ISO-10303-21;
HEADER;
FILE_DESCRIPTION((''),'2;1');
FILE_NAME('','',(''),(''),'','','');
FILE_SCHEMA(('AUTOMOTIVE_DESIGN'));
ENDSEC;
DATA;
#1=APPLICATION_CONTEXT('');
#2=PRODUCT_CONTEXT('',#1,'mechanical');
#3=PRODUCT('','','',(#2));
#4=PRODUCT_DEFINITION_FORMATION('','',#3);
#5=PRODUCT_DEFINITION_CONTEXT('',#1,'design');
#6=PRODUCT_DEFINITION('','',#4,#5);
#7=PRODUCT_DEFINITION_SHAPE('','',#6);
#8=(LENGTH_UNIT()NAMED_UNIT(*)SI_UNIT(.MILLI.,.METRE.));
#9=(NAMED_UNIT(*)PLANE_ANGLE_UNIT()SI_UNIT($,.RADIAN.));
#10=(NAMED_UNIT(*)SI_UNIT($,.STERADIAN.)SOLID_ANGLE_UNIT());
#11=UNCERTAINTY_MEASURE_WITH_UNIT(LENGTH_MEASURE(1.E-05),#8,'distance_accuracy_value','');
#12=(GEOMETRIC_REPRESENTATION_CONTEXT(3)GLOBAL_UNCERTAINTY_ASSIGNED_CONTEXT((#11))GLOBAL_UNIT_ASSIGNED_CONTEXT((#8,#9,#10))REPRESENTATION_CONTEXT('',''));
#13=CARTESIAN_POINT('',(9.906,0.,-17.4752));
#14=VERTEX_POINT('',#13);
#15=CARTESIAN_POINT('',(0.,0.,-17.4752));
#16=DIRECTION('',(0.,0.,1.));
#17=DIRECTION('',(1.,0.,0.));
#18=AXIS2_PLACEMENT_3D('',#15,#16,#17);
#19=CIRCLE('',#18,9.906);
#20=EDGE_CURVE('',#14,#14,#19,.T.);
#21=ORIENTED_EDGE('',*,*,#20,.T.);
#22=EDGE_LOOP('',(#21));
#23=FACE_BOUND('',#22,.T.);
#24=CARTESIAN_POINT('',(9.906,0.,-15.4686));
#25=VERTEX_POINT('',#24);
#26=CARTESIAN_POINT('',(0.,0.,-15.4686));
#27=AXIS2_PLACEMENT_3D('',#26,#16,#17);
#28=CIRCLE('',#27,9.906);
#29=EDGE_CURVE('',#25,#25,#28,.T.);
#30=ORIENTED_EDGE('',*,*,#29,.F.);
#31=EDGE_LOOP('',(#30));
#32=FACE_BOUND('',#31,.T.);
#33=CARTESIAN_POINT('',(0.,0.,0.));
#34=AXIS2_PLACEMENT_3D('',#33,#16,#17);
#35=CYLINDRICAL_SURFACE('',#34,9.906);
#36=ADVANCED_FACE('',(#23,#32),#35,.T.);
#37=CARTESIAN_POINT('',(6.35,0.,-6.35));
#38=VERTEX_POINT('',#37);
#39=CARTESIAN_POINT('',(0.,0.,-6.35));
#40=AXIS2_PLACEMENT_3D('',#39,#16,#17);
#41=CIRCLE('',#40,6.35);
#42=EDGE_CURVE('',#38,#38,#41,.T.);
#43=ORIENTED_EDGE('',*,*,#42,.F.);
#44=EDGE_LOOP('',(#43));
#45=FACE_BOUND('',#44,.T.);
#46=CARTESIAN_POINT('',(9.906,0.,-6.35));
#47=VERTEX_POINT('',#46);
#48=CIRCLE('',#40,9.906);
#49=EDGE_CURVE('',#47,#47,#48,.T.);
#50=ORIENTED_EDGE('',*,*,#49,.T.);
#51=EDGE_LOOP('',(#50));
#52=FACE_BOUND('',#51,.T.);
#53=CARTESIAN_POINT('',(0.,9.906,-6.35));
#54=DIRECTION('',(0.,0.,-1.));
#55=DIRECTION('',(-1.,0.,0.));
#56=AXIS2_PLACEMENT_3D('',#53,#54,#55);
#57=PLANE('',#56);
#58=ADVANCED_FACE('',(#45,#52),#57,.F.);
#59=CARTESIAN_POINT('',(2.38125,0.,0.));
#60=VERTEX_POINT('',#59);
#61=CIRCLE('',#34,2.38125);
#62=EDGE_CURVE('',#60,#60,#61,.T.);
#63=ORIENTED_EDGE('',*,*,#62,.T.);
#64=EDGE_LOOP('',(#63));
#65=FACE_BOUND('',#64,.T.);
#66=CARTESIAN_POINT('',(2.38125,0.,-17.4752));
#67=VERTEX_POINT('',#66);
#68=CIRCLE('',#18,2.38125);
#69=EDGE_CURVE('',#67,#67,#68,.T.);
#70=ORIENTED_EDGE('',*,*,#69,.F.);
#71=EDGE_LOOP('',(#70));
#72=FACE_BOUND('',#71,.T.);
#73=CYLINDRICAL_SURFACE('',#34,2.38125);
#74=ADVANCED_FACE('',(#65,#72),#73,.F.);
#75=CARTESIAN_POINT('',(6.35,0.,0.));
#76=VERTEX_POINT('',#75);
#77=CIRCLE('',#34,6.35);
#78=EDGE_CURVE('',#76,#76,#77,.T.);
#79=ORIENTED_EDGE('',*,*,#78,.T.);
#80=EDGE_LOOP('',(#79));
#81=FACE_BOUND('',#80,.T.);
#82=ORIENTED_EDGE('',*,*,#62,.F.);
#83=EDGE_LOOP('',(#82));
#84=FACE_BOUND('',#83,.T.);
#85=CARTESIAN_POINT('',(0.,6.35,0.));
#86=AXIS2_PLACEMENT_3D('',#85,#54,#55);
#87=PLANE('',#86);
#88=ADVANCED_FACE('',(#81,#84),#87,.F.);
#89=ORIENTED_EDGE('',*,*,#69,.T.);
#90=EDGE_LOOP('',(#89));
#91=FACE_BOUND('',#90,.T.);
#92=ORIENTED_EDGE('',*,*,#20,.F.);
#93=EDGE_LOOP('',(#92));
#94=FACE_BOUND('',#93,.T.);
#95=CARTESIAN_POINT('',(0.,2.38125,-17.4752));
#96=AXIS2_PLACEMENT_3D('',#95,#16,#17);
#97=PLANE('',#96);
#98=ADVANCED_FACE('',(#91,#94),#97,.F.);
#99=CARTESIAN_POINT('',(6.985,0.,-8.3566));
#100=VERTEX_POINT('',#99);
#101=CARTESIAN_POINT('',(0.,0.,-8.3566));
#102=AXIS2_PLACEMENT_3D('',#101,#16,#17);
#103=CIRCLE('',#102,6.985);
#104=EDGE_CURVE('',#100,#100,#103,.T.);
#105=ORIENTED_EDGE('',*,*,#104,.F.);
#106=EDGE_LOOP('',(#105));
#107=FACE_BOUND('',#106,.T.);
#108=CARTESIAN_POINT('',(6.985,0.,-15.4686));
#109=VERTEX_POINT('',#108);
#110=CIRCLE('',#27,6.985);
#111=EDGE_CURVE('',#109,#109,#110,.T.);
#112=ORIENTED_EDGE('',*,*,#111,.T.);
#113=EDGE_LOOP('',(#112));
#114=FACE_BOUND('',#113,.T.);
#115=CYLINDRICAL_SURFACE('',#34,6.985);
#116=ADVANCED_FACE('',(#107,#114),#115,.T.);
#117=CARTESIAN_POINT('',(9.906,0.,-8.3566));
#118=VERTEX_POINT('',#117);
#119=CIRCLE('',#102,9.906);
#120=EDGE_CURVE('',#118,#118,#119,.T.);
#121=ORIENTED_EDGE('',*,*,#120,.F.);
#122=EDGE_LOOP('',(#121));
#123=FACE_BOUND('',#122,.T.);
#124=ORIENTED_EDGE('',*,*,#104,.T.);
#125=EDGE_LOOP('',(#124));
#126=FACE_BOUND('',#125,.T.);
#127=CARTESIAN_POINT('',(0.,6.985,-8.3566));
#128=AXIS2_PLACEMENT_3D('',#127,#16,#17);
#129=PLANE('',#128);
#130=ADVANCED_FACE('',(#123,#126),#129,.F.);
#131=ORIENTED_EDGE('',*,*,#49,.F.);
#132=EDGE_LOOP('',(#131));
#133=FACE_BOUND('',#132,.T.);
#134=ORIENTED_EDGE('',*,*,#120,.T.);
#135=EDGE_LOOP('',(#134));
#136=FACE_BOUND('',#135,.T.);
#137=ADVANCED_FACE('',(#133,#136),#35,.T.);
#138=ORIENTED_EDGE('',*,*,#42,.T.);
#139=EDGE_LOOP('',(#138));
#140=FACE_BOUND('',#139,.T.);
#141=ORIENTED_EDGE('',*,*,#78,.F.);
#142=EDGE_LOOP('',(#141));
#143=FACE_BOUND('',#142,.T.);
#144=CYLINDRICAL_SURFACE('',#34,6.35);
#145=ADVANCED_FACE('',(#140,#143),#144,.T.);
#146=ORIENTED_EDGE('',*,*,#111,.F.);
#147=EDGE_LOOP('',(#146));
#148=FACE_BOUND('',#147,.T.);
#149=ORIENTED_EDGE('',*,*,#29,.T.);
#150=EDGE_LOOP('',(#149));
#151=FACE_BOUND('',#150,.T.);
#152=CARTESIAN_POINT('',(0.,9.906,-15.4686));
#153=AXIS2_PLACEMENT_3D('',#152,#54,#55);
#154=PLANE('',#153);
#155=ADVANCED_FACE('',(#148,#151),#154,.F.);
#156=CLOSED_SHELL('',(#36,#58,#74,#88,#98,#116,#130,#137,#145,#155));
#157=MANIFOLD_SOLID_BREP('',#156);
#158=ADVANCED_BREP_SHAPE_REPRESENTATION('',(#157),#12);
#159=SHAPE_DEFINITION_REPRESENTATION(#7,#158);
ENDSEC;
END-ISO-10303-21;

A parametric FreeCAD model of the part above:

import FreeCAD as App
import Part
import Sketcher
from FreeCAD import Vector
Q = App.Units.Quantity

doc = App.newDocument("Part")
params = doc.addObject("Spreadsheet::Sheet", "Params")
for row, (alias, value) in enumerate([
    ("sketch1_width", "0.14 in"),
    ("sketch1_height", "0.28 in"),
    ("sketch1_height2", "0.25 in"),
    ("sketch1_width2", "0.115 in"),
    ("sketch1_width3", "0.15625 in"),
    ("revolution_angle", "360 deg"),
], start=1):
    params.set(f"A{row}", alias)
    params.set(f"B{row}", "=" + value)
    params.setAlias(f"B{row}", alias)

body = doc.addObject("PartDesign::Body", "Body")

sketch1 = body.newObject("Sketcher::SketchObject", "Sketch")
sketch1.AttachmentSupport = (doc.getObject("YZ_Plane"), [""])
sketch1.MapMode = "FlatFace"
sketch1.addGeometry(Part.LineSegment(Vector(2.4, 0, 0), Vector(2.4, -17.5, 0)), False)
sketch1.addGeometry(Part.LineSegment(Vector(2.4, -17.5, 0), Vector(9.9, -17.5, 0)), False)
sketch1.addGeometry(Part.LineSegment(Vector(9.9, -17.5, 0), Vector(9.9, -15.5, 0)), False)
sketch1.addGeometry(Part.LineSegment(Vector(9.9, -15.5, 0), Vector(7, -15.5, 0)), False)
sketch1.addGeometry(Part.LineSegment(Vector(7, -15.5, 0), Vector(7, -8.4, 0)), False)
sketch1.addGeometry(Part.LineSegment(Vector(7, -8.4, 0), Vector(9.9, -8.4, 0)), False)
sketch1.addGeometry(Part.LineSegment(Vector(9.9, -8.4, 0), Vector(9.9, -6.3, 0)), False)
sketch1.addGeometry(Part.LineSegment(Vector(9.9, -6.3, 0), Vector(6.3, -6.3, 0)), False)
sketch1.addGeometry(Part.LineSegment(Vector(6.3, -6.3, 0), Vector(6.3, 0, 0)), False)
sketch1.addGeometry(Part.LineSegment(Vector(6.3, 0, 0), Vector(2.4, 0, 0)), False)
sketch1.addConstraint(Sketcher.Constraint("Coincident", 0, 2, 1, 1))
sketch1.addConstraint(Sketcher.Constraint("Coincident", 1, 2, 2, 1))
sketch1.addConstraint(Sketcher.Constraint("Coincident", 2, 2, 3, 1))
sketch1.addConstraint(Sketcher.Constraint("Coincident", 3, 2, 4, 1))
sketch1.addConstraint(Sketcher.Constraint("Coincident", 4, 2, 5, 1))
sketch1.addConstraint(Sketcher.Constraint("Coincident", 5, 2, 6, 1))
sketch1.addConstraint(Sketcher.Constraint("Coincident", 6, 2, 7, 1))
sketch1.addConstraint(Sketcher.Constraint("Coincident", 7, 2, 8, 1))
sketch1.addConstraint(Sketcher.Constraint("Coincident", 8, 2, 9, 1))
sketch1.addConstraint(Sketcher.Constraint("Coincident", 9, 2, 0, 1))
sketch1.addConstraint(Sketcher.Constraint("Vertical", 0))
sketch1.addConstraint(Sketcher.Constraint("Horizontal", 1))
sketch1.addConstraint(Sketcher.Constraint("Vertical", 2))
sketch1.addConstraint(Sketcher.Constraint("Horizontal", 3))
sketch1.addConstraint(Sketcher.Constraint("Vertical", 4))
sketch1.addConstraint(Sketcher.Constraint("Horizontal", 5))
sketch1.addConstraint(Sketcher.Constraint("Vertical", 6))
sketch1.addConstraint(Sketcher.Constraint("Horizontal", 7))
sketch1.addConstraint(Sketcher.Constraint("Vertical", 8))
sketch1.addConstraint(Sketcher.Constraint("Horizontal", 9))
sketch1.addConstraint(Sketcher.Constraint("PointOnObject", 8, 2, -1))
sketch1.addConstraint(Sketcher.Constraint("Vertical", 2, 2, 5, 2))
sketch1.addConstraint(Sketcher.Constraint("Equal", 2, 6))
sketch1.addConstraint(Sketcher.Constraint("DistanceX", 7, 2, 7, 1, Q("0.14 in")))
sketch1.addConstraint(Sketcher.Constraint("DistanceY", 4, 1, 4, 2, Q("0.28 in")))
sketch1.addConstraint(Sketcher.Constraint("DistanceY", 8, 1, 8, 2, Q("0.25 in")))
sketch1.addConstraint(Sketcher.Constraint("DistanceX", 3, 2, 3, 1, Q("0.115 in")))
sketch1.addConstraint(Sketcher.Constraint("DistanceX", 9, 2, 9, 1, Q("0.15625 in")))
sketch1.addConstraint(Sketcher.Constraint("DistanceY", 0, 2, 0, 1, Q("0.688 in")))
sketch1.addConstraint(Sketcher.Constraint("DistanceX", -1, 1, 1, 2, Q("0.39 in")))
sketch1.setExpression("Constraints[23]", "Params.sketch1_width")
sketch1.setExpression("Constraints[24]", "Params.sketch1_height")
sketch1.setExpression("Constraints[25]", "Params.sketch1_height2")
sketch1.setExpression("Constraints[26]", "Params.sketch1_width2")
sketch1.setExpression("Constraints[27]", "Params.sketch1_width3")
revolution = body.newObject("PartDesign::Revolution", "Revolution")
revolution.Profile = sketch1
revolution.ReferenceAxis = (sketch1, ["V_Axis"])
revolution.setExpression("Angle", "Params.revolution_angle")

doc.recompute()
